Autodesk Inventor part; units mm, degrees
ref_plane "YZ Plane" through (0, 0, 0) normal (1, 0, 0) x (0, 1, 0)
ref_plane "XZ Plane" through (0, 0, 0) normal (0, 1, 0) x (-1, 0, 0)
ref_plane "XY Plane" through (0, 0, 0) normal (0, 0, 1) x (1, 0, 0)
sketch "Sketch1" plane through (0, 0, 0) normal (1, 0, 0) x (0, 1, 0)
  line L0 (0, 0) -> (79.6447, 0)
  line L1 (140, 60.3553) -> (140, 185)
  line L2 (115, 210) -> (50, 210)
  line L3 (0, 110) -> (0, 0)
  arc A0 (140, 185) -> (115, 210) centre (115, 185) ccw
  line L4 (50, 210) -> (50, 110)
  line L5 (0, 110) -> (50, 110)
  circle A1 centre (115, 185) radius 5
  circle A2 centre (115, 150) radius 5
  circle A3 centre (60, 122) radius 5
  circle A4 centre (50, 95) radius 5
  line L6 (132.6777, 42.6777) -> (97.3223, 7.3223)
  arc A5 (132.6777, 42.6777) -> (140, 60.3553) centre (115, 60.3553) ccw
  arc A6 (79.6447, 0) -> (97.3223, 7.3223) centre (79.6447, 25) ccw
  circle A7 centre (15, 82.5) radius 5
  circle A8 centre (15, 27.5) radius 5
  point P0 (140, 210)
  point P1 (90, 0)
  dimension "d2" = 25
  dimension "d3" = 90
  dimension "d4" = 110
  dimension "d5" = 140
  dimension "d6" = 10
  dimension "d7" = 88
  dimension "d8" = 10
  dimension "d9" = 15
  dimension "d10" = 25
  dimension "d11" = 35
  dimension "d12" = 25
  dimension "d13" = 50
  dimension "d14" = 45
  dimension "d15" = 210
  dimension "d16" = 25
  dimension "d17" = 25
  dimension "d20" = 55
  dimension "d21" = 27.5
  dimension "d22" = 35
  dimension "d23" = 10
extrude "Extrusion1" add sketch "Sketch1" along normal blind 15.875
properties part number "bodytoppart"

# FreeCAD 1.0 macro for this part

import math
import FreeCAD as App
import Part
import Sketcher

V = App.Vector
Q = App.Units.Quantity

doc = App.newDocument("Part")
body = doc.addObject("PartDesign::Body", "Body")

# Sketch on YZ plane
sketch1 = doc.addObject("Sketcher::SketchObject", "Sketch")
body.addObject(sketch1)
sketch1.AttachmentSupport = (doc.YZ_Plane, [""])
sketch1.MapMode = "FlatFace"
sketch1.addGeometry([
    Part.LineSegment(V(0, 110, 0), V(0, 0, 0)),  # 0
    Part.LineSegment(V(0, 0, 0), V(79.6447, 0, 0)),  # 1
    Part.ArcOfCircle(Part.Circle(V(79.6447, 25, 0), V(0, 0, 1), 25), math.radians(-90), math.radians(-45.000162)),  # 2
    Part.LineSegment(V(97.3223, 7.3223, 0), V(132.6777, 42.6777, 0)),  # 3
    Part.ArcOfCircle(Part.Circle(V(115, 60.3553, 0), V(0, 0, 1), 24.999972), math.radians(-44.999838), math.radians(0)),  # 4
    Part.LineSegment(V(140, 60.3553, 0), V(140, 185, 0)),  # 5
    Part.ArcOfCircle(Part.Circle(V(115, 185, 0), V(0, 0, 1), 25), math.radians(0), math.radians(90)),  # 6
    Part.LineSegment(V(115, 210, 0), V(50, 210, 0)),  # 7
    Part.LineSegment(V(50, 210, 0), V(50, 110, 0)),  # 8
    Part.LineSegment(V(50, 110, 0), V(0, 110, 0)),  # 9
    Part.Circle(V(15, 27.5, 0), V(0, 0, 1), 5),  # 10
    Part.Circle(V(15, 82.5, 0), V(0, 0, 1), 5),  # 11
    Part.Circle(V(50, 95, 0), V(0, 0, 1), 5),  # 12
    Part.Circle(V(60, 122, 0), V(0, 0, 1), 5),  # 13
    Part.Circle(V(115, 150, 0), V(0, 0, 1), 5),  # 14
    Part.Circle(V(115, 185, 0), V(0, 0, 1), 5),  # 15
], False)
sketch1.addConstraint([
    Sketcher.Constraint("Coincident", 0, 2, 1, 1),
    Sketcher.Constraint("Tangent", 1, 2, 2, 1),
    Sketcher.Constraint("Tangent", 2, 2, 3, 1),
    Sketcher.Constraint("Tangent", 3, 2, 4, 1),
    Sketcher.Constraint("Tangent", 4, 2, 5, 1),
    Sketcher.Constraint("Tangent", 5, 2, 6, 1),
    Sketcher.Constraint("Tangent", 6, 2, 7, 1),
    Sketcher.Constraint("Coincident", 7, 2, 8, 1),
    Sketcher.Constraint("Coincident", 8, 2, 9, 1),
    Sketcher.Constraint("Coincident", 9, 2, 0, 1),
    Sketcher.Constraint("Vertical", 0),
    Sketcher.Constraint("Horizontal", 1),
    Sketcher.Constraint("Vertical", 5),
    Sketcher.Constraint("Horizontal", 7),
    Sketcher.Constraint("Vertical", 8),
    Sketcher.Constraint("Horizontal", 9),
    Sketcher.Constraint("Coincident", 0, 2, -1, 1),
    Sketcher.Constraint("Coincident", 15, 3, 6, 3),
    Sketcher.Constraint("Equal", 2, 4),
    Sketcher.Constraint("Equal", 4, 6),
    Sketcher.Constraint("Equal", 10, 11),
    Sketcher.Constraint("Equal", 11, 12),
    Sketcher.Constraint("Equal", 12, 13),
    Sketcher.Constraint("Equal", 13, 14),
    Sketcher.Constraint("Equal", 14, 15),
    Sketcher.Constraint("Vertical", 10, 3, 11, 3),
    Sketcher.Constraint("Vertical", 6, 3, 14, 3),
    Sketcher.Constraint("Vertical", 12, 3, 7, 2),
    Sketcher.Constraint("Angle", 3, Q("45 deg")),
    Sketcher.Constraint("Diameter", 10, Q("0.3937 in")),
    Sketcher.Constraint("Radius", 2, 25.0),
    Sketcher.Constraint("DistanceX", 9, 2, 9, 1, Q("1.9685 in")),
    Sketcher.Constraint("DistanceY", 0, 2, 0, 1, Q("4.3307 in")),
    Sketcher.Constraint("Distance", 3, Q("1.9685 in")),
    Sketcher.Constraint("DistanceX", -1, 1, 4, 2, Q("5.5118 in")),
    Sketcher.Constraint("DistanceY", 12, 3, 6, 3, Q("3.5433 in")),
    Sketcher.Constraint("DistanceX", 12, 3, 13, 3, Q("0.3937 in")),
    Sketcher.Constraint("DistanceY", 8, 2, 8, 1, Q("3.937 in")),
    Sketcher.Constraint("DistanceX", -1, 1, 10, 3, 15.0),
    Sketcher.Constraint("DistanceY", -1, 1, 10, 3, 27.5),
    Sketcher.Constraint("DistanceY", 10, 3, 11, 3, 55.0),
    Sketcher.Constraint("DistanceY", 14, 3, 6, 3, 35.0),
    Sketcher.Constraint("DistanceY", 13, 3, 6, 2, 88.0),
])
pad1 = doc.addObject("PartDesign::Pad", "Pad")
body.addObject(pad1)
pad1.Profile = sketch1
pad1.Length = Q("0.625 in")

doc.recompute()
